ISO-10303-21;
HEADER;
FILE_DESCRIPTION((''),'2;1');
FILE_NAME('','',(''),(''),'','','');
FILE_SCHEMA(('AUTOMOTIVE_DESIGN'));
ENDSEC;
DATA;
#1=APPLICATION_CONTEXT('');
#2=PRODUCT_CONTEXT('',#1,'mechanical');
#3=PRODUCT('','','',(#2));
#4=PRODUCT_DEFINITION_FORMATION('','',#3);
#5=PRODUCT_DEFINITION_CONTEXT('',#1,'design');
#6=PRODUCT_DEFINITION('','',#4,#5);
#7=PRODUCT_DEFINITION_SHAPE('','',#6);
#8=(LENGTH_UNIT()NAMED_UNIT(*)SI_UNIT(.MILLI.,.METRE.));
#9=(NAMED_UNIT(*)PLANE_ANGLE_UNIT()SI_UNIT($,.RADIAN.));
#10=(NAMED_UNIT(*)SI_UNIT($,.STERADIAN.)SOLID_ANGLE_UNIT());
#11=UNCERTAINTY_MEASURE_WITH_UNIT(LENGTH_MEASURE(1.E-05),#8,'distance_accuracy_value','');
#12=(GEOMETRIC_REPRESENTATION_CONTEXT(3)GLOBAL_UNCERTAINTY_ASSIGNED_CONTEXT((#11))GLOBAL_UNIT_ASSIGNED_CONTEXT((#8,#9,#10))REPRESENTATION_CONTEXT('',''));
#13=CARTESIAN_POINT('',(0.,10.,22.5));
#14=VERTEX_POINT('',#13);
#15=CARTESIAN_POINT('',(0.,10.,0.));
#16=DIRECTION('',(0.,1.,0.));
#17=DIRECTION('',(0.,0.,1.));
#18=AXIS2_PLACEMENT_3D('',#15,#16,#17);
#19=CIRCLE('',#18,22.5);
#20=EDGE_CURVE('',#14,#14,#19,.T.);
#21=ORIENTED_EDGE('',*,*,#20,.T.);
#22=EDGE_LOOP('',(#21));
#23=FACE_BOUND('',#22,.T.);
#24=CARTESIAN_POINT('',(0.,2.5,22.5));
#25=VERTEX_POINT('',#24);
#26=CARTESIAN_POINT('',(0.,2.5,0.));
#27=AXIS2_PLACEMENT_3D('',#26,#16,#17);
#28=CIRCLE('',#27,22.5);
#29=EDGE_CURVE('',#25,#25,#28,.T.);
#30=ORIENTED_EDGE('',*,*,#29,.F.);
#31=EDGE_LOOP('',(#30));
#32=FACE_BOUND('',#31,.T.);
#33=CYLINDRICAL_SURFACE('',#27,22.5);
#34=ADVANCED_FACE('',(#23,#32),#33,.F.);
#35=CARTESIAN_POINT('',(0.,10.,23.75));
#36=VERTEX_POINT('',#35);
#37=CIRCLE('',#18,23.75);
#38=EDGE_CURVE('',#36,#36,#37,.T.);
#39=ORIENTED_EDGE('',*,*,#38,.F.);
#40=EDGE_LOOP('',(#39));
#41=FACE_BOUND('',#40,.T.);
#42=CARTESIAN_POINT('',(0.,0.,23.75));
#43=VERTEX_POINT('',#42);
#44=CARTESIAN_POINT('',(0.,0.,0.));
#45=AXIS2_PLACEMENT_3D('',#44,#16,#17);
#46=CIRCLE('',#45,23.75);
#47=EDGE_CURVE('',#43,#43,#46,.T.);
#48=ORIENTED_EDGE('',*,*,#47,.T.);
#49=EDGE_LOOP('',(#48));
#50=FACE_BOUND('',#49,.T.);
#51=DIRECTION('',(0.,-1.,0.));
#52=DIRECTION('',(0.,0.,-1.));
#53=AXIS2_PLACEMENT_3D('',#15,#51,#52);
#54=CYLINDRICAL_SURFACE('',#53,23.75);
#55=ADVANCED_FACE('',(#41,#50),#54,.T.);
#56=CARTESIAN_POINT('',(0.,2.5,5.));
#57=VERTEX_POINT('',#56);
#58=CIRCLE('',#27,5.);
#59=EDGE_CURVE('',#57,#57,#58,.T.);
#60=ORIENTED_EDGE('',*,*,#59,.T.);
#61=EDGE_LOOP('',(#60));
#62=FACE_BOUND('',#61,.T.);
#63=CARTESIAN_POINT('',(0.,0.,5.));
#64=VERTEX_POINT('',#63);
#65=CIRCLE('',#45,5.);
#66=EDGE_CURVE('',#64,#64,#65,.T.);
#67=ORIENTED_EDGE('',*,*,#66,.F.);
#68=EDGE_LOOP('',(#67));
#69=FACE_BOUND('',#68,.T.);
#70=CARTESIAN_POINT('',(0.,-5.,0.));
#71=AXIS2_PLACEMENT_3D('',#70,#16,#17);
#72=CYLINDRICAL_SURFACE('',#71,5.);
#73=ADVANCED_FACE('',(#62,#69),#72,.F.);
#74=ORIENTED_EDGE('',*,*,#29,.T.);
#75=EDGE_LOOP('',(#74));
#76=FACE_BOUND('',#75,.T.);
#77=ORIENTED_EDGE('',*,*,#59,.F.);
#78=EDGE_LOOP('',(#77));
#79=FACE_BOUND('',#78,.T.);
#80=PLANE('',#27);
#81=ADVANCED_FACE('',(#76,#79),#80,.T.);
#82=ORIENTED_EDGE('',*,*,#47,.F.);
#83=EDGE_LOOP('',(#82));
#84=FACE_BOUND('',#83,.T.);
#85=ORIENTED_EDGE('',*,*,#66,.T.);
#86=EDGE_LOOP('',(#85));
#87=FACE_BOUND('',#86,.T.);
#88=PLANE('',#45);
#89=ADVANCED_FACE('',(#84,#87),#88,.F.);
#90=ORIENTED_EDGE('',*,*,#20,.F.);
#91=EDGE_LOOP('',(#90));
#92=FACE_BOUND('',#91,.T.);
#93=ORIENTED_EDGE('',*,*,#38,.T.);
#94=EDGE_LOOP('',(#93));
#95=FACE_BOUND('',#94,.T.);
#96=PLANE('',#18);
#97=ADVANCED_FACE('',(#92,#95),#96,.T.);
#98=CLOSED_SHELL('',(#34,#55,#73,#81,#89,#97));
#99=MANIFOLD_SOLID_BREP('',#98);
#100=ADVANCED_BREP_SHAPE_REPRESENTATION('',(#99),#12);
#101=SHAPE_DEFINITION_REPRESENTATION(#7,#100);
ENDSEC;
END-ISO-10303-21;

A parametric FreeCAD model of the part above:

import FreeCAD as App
import Part
import Sketcher
Q = App.Units.Quantity

doc = App.newDocument("Part")
params = doc.addObject("Spreadsheet::Sheet", "Params")
for row, (alias, value) in enumerate([
    ("sketch1_diameter", "47.5 mm"),
    ("pad1_length", "10 mm"),
    ("sketch2_diameter", "45 mm"),
    ("pocket1_length", "7.5 mm"),
    ("sketch3_diameter", "10 mm"),
    ("pocket2_length", "7.5 mm"),
], start=1):
    params.set(f"A{row}", alias)
    params.set(f"B{row}", "=" + value)
    params.setAlias(f"B{row}", alias)

body = doc.addObject("PartDesign::Body", "Body")

sketch1 = body.newObject("Sketcher::SketchObject", "Sketch")
sketch1.AttachmentSupport = (doc.getObject("XZ_Plane"), [""])
sketch1.MapMode = "FlatFace"
sketch1.addGeometry(Part.Circle(App.Vector(0, 0, 0), App.Vector(0, 0, 1), 24), False)
sketch1.addConstraint([
    Sketcher.Constraint("Coincident", 0, 3, -1, 1),
    Sketcher.Constraint("Diameter", 0, Q("47.5 mm")),
])
sketch1.setExpression("Constraints[1]", "Params.sketch1_diameter")
pad1 = body.newObject("PartDesign::Pad", "Pad")
pad1.Profile = sketch1
pad1.setExpression("Length", "Params.pad1_length")
pad1.Reversed = True

sketch2 = body.newObject("Sketcher::SketchObject", "Sketch001")
sketch2.AttachmentSupport = (doc.getObject("XZ_Plane"), [""])
sketch2.MapMode = "FlatFace"
sketch2.AttachmentOffset = App.Placement(App.Vector(0, 0, -10), App.Rotation())
sketch2.addGeometry(Part.Circle(App.Vector(0, 0, 0), App.Vector(0, 0, 1), 22), False)
sketch2.addConstraint([
    Sketcher.Constraint("Coincident", 0, 3, -1, 1),
    Sketcher.Constraint("Diameter", 0, Q("45 mm")),
])
sketch2.setExpression("Constraints[1]", "Params.sketch2_diameter")
pocket1 = body.newObject("PartDesign::Pocket", "Pocket")
pocket1.Profile = sketch2
pocket1.setExpression("Length", "Params.pocket1_length")
pocket1.Reversed = True

sketch3 = body.newObject("Sketcher::SketchObject", "Sketch002")
sketch3.AttachmentSupport = (doc.getObject("XZ_Plane"), [""])
sketch3.MapMode = "FlatFace"
sketch3.AttachmentOffset = App.Placement(App.Vector(0, 0, -2.5), App.Rotation())
sketch3.addGeometry(Part.Circle(App.Vector(0, 0, 0), App.Vector(0, 0, 1), 5), False)
sketch3.addConstraint([
    Sketcher.Constraint("Coincident", 0, 3, -1, 1),
    Sketcher.Constraint("Diameter", 0, Q("10 mm")),
])
sketch3.setExpression("Constraints[1]", "Params.sketch3_diameter")
pocket2 = body.newObject("PartDesign::Pocket", "Pocket001")
pocket2.Profile = sketch3
pocket2.setExpression("Length", "Params.pocket2_length")
pocket2.Reversed = True

doc.recompute()
